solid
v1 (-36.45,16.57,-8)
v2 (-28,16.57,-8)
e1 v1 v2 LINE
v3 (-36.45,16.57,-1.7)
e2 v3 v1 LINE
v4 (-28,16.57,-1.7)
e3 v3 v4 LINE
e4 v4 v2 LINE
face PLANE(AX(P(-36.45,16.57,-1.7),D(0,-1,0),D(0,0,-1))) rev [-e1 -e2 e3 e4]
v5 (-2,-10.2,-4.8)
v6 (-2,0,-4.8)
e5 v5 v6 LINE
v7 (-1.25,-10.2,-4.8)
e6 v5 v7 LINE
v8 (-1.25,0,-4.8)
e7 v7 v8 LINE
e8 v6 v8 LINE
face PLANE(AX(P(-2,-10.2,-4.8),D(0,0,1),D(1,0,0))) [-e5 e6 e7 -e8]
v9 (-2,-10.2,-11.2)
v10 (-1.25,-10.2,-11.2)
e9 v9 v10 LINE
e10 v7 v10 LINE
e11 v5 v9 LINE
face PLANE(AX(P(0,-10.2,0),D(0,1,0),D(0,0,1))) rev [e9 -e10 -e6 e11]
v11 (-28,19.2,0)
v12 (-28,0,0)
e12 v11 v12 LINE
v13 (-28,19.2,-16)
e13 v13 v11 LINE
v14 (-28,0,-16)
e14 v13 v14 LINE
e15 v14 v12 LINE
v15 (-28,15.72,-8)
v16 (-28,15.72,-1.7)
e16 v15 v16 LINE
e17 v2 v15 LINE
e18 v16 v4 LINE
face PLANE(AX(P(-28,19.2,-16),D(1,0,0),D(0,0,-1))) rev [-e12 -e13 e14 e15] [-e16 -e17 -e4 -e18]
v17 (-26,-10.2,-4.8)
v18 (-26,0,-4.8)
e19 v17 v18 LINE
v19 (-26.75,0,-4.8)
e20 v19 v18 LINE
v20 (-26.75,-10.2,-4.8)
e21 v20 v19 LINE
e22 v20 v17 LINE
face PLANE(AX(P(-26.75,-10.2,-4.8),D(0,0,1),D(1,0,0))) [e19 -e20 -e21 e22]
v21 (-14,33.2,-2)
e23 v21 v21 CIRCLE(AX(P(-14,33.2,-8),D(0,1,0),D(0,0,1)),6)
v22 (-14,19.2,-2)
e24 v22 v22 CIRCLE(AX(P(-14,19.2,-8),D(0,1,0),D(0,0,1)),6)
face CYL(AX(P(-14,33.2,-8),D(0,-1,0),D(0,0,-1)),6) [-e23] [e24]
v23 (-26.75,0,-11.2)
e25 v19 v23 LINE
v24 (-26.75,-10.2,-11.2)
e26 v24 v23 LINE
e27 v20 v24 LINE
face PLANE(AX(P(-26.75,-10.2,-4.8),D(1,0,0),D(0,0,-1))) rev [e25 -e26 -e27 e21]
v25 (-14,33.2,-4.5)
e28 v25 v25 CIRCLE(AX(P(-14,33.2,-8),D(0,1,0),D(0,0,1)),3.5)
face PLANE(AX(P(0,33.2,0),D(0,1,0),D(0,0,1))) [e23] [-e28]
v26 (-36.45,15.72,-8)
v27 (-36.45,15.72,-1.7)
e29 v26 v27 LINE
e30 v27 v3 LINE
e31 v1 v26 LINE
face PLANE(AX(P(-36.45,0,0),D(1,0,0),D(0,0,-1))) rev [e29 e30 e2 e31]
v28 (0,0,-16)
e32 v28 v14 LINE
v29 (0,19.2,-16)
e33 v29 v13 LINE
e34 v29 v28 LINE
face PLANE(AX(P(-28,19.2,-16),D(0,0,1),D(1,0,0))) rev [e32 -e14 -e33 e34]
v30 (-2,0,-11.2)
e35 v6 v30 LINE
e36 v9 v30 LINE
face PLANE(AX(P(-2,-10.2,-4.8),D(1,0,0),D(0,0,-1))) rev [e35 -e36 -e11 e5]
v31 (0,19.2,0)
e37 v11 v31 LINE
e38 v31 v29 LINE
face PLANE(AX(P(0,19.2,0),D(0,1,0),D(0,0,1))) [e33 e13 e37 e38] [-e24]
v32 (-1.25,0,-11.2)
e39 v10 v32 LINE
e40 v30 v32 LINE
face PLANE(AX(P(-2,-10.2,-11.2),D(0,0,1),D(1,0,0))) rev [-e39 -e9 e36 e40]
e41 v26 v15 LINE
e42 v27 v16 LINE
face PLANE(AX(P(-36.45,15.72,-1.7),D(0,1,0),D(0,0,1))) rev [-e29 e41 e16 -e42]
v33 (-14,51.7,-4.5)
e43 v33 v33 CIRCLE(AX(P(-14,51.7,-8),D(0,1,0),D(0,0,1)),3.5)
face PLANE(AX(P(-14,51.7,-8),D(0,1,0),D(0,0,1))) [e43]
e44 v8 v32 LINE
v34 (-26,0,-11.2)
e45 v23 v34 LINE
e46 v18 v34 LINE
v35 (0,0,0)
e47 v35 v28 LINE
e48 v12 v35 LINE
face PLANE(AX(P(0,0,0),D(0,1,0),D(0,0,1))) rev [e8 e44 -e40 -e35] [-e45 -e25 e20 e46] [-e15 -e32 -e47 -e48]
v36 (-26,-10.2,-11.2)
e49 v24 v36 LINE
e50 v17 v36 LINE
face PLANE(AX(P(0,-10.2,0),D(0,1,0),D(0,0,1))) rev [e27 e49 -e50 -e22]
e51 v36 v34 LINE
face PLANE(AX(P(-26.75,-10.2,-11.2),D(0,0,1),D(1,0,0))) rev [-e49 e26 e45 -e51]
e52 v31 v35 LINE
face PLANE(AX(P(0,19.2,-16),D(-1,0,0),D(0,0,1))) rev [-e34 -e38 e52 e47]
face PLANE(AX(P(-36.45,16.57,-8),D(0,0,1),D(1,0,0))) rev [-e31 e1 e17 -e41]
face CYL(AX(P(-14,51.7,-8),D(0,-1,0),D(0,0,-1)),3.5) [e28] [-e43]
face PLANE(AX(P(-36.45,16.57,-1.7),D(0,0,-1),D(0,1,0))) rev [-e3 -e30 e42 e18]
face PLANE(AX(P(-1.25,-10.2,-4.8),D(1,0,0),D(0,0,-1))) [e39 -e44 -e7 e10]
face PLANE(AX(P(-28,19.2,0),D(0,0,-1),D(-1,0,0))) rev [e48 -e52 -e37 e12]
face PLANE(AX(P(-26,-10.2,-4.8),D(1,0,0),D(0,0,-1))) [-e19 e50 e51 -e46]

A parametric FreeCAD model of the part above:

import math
import FreeCAD as App
import Part
import Sketcher
from FreeCAD import Vector

doc = App.newDocument("Part")
body = doc.addObject("PartDesign::Body", "Body")

# Sketch on XZ plane
sketch1 = body.newObject("Sketcher::SketchObject", "Sketch")
sketch1.AttachmentSupport = (doc.getObject("XZ_Plane"), [""])
sketch1.MapMode = "FlatFace"
sketch1.addGeometry([
    Part.LineSegment(Vector(-28, -16, 0), Vector(-28, 0, 0)),
    Part.LineSegment(Vector(-28, 0, 0), Vector(0, 0, 0)),
    Part.LineSegment(Vector(0, 0, 0), Vector(0, -16, 0)),
    Part.LineSegment(Vector(0, -16, 0), Vector(-28, -16, 0)),
], False)
sketch1.addConstraint([
    Sketcher.Constraint("Coincident", 0, 2, 1, 1),
    Sketcher.Constraint("Coincident", 1, 2, 2, 1),
    Sketcher.Constraint("Coincident", 2, 2, 3, 1),
    Sketcher.Constraint("Coincident", 3, 2, 0, 1),
    Sketcher.Constraint("Vertical", 0),
    Sketcher.Constraint("Horizontal", 1),
    Sketcher.Constraint("Vertical", 2),
    Sketcher.Constraint("Horizontal", 3),
    Sketcher.Constraint("Coincident", 1, 2, -1, 1),
    Sketcher.Constraint("DistanceX", 1, 1, 1, 2, 28.0),
    Sketcher.Constraint("DistanceY", 0, 1, 0, 2, 16.0),
])
pad1 = body.newObject("PartDesign::Pad", "Pad")
pad1.Profile = sketch1
pad1.Length = 19.2
pad1.Reversed = True

# Sketch on XZ plane
sketch2 = body.newObject("Sketcher::SketchObject", "Sketch001")
sketch2.AttachmentSupport = (doc.getObject("XZ_Plane"), [""])
sketch2.MapMode = "FlatFace"
sketch2.addGeometry([
    Part.LineSegment(Vector(-2, -4.8, 0), Vector(-2, -11.2, 0)),  # 0
    Part.LineSegment(Vector(-2, -11.2, 0), Vector(-1.2, -11.2, 0)),  # 1
    Part.LineSegment(Vector(-1.2, -11.2, 0), Vector(-1.2, -4.8, 0)),  # 2
    Part.LineSegment(Vector(-1.2, -4.8, 0), Vector(-2, -4.8, 0)),  # 3
    Part.LineSegment(Vector(-26.8, -4.8, 0), Vector(-26.8, -11.2, 0)),  # 4
    Part.LineSegment(Vector(-26.8, -11.2, 0), Vector(-26, -11.2, 0)),  # 5
    Part.LineSegment(Vector(-26, -11.2, 0), Vector(-26, -4.8, 0)),  # 6
    Part.LineSegment(Vector(-26, -4.8, 0), Vector(-26.8, -4.8, 0)),  # 7
], False)
sketch2.addConstraint([
    Sketcher.Constraint("Coincident", 0, 2, 1, 1),
    Sketcher.Constraint("Coincident", 1, 2, 2, 1),
    Sketcher.Constraint("Coincident", 2, 2, 3, 1),
    Sketcher.Constraint("Coincident", 3, 2, 0, 1),
    Sketcher.Constraint("Coincident", 4, 2, 5, 1),
    Sketcher.Constraint("Coincident", 5, 2, 6, 1),
    Sketcher.Constraint("Coincident", 6, 2, 7, 1),
    Sketcher.Constraint("Coincident", 7, 2, 4, 1),
    Sketcher.Constraint("Vertical", 0),
    Sketcher.Constraint("Horizontal", 1),
    Sketcher.Constraint("Vertical", 2),
    Sketcher.Constraint("Horizontal", 3),
    Sketcher.Constraint("Vertical", 4),
    Sketcher.Constraint("Horizontal", 5),
    Sketcher.Constraint("Vertical", 6),
    Sketcher.Constraint("Horizontal", 7),
    Sketcher.Constraint("Horizontal", 1, 2, 4, 2),
    Sketcher.Constraint("Horizontal", 3, 2, 6, 2),
    Sketcher.Constraint("Equal", 3, 5),
    Sketcher.Constraint("DistanceY", 0, 2, 0, 1, 6.4),
    Sketcher.Constraint("DistanceX", 0, 2, -1, 1, 2.0),
    Sketcher.Constraint("DistanceX", 5, 2, -1, 1, 26.0),
    Sketcher.Constraint("DistanceX", 1, 1, 1, 2, 0.75),
    Sketcher.Constraint("DistanceY", 0, 2, -1, 1, 11.2),
])
pad2 = body.newObject("PartDesign::Pad", "Pad001")
pad2.Profile = sketch2
pad2.Length = 10.2

# Sketch on YZ plane
sketch3 = body.newObject("Sketcher::SketchObject", "Sketch002")
sketch3.AttachmentSupport = (doc.getObject("YZ_Plane"), [""])
sketch3.MapMode = "FlatFace"
sketch3.AttachmentOffset = App.Placement(Vector(0, 0, -28), App.Rotation())
sketch3.addGeometry([
    Part.LineSegment(Vector(16.6, -8, 0), Vector(15.7, -8, 0)),
    Part.LineSegment(Vector(15.7, -8, 0), Vector(15.7, -1.7, 0)),
    Part.LineSegment(Vector(15.7, -1.7, 0), Vector(16.6, -1.7, 0)),
    Part.LineSegment(Vector(16.6, -1.7, 0), Vector(16.6, -8, 0)),
], False)
sketch3.addConstraint([
    Sketcher.Constraint("Coincident", 0, 2, 1, 1),
    Sketcher.Constraint("Coincident", 1, 2, 2, 1),
    Sketcher.Constraint("Coincident", 2, 2, 3, 1),
    Sketcher.Constraint("Coincident", 3, 2, 0, 1),
    Sketcher.Constraint("Horizontal", 0),
    Sketcher.Constraint("Vertical", 1),
    Sketcher.Constraint("Horizontal", 2),
    Sketcher.Constraint("Vertical", 3),
    Sketcher.Constraint("DistanceY", 1, 1, 1, 2, 6.3),
    Sketcher.Constraint("DistanceY", 0, 2, -1, 1, 8.0),
    Sketcher.Constraint("DistanceX", 0, 2, 0, 1, 0.85),
    Sketcher.Constraint("DistanceX", -1, 1, 0, 2, 15.72),
])
pad3 = body.newObject("PartDesign::Pad", "Pad002")
pad3.Profile = sketch3
pad3.Length = 8.45
pad3.Reversed = True

# Sketch on XZ plane
sketch4 = body.newObject("Sketcher::SketchObject", "Sketch003")
sketch4.AttachmentSupport = (doc.getObject("XZ_Plane"), [""])
sketch4.MapMode = "FlatFace"
sketch4.AttachmentOffset = App.Placement(Vector(0, 0, -19.2), App.Rotation())
sketch4.addGeometry([
    Part.ArcOfCircle(Part.Circle(Vector(-14, -8, 0), Vector(0, 0, 1), 6), math.radians(150), math.radians(330)),
    Part.ArcOfCircle(Part.Circle(Vector(-14, -8, 0), Vector(0, 0, 1), 6), math.radians(0), math.radians(150)),
    Part.ArcOfCircle(Part.Circle(Vector(-14, -8, 0), Vector(0, 0, 1), 6), math.radians(-30), math.radians(0)),
], False)
sketch4.addConstraint([
    Sketcher.Constraint("Tangent", 0, 1, 1, 2),
    Sketcher.Constraint("Tangent", 1, 1, 2, 2),
    Sketcher.Constraint("Tangent", 2, 1, 0, 2),
    Sketcher.Constraint("Horizontal", 2, 3, 1, 1),
    Sketcher.Constraint("Radius", 0, 6.0),
    Sketcher.Constraint("DistanceX", 0, 3, -1, 1, 14.0),
    Sketcher.Constraint("DistanceY", 0, 3, -1, 1, 8.0),
    Sketcher.Constraint("DistanceX", 0, 1, -1, 1, 19.209459),
    Sketcher.Constraint("DistanceX", 2, 1, -1, 1, 8.790541),
])
pad4 = body.newObject("PartDesign::Pad", "Pad003")
pad4.Profile = sketch4
pad4.Length = 14
pad4.Reversed = True

# Sketch on XZ plane
sketch5 = body.newObject("Sketcher::SketchObject", "Sketch004")
sketch5.AttachmentSupport = (doc.getObject("XZ_Plane"), [""])
sketch5.MapMode = "FlatFace"
sketch5.AttachmentOffset = App.Placement(Vector(0, 0, -33.2), App.Rotation())
sketch5.addGeometry(Part.Circle(Vector(-14, -8, 0), Vector(0, 0, 1), 3.5), False)
sketch5.addConstraint([
    Sketcher.Constraint("Diameter", 0, 7.0),
    Sketcher.Constraint("DistanceX", 0, 3, -1, 1, 14.0),
    Sketcher.Constraint("DistanceY", 0, 3, -1, 1, 8.0),
])
pad5 = body.newObject("PartDesign::Pad", "Pad004")
pad5.Profile = sketch5
pad5.Length = 18.5
pad5.Reversed = True

doc.recompute()
